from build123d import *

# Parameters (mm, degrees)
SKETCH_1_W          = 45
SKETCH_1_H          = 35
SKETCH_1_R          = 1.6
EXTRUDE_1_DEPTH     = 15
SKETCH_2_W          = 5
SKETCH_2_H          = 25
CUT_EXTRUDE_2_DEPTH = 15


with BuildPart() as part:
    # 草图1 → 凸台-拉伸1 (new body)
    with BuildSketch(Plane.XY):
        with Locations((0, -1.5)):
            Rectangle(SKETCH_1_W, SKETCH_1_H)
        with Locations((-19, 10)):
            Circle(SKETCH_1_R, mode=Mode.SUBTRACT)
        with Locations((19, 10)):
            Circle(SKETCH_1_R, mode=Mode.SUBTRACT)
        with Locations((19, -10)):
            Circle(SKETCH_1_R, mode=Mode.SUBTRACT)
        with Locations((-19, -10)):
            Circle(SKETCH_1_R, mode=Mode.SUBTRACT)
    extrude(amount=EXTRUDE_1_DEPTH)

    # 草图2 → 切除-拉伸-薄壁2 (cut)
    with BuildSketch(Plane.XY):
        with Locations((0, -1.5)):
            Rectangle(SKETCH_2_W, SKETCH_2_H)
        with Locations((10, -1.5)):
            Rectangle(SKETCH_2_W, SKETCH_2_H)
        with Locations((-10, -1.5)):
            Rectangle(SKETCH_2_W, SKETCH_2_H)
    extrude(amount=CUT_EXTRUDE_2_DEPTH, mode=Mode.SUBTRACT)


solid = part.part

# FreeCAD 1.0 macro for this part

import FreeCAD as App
import Part
import Sketcher
Q = App.Units.Quantity

doc = App.newDocument("Part")
body = doc.addObject("PartDesign::Body", "Body")

sketch1 = body.newObject("Sketcher::SketchObject", "Sketch")
sketch1.AttachmentSupport = (doc.getObject("XY_Plane"), [""])
sketch1.MapMode = "FlatFace"
sketch1.addGeometry([
    Part.LineSegment(App.Vector(-22.5, 16, 0), App.Vector(-22.5, -19, 0)),
    Part.LineSegment(App.Vector(-22.5, -19, 0), App.Vector(22.5, -19, 0)),
    Part.LineSegment(App.Vector(22.5, -19, 0), App.Vector(22.5, 16, 0)),
    Part.LineSegment(App.Vector(22.5, 16, 0), App.Vector(-22.5, 16, 0)),
    Part.Circle(App.Vector(-19, -10, 0), App.Vector(0, 0, 1), 1.6),
    Part.Circle(App.Vector(19, -10, 0), App.Vector(0, 0, 1), 1.6),
    Part.Circle(App.Vector(-19, 10, 0), App.Vector(0, 0, 1), 1.6),
    Part.Circle(App.Vector(19, 10, 0), App.Vector(0, 0, 1), 1.6),
], False)
sketch1.addConstraint([
    Sketcher.Constraint("Coincident", 0, 2, 1, 1),
    Sketcher.Constraint("Coincident", 1, 2, 2, 1),
    Sketcher.Constraint("Coincident", 2, 2, 3, 1),
    Sketcher.Constraint("Coincident", 3, 2, 0, 1),
    Sketcher.Constraint("Vertical", 0),
    Sketcher.Constraint("Horizontal", 1),
    Sketcher.Constraint("Vertical", 2),
    Sketcher.Constraint("Horizontal", 3),
    Sketcher.Constraint("Equal", 4, 5),
    Sketcher.Constraint("Equal", 5, 6),
    Sketcher.Constraint("Equal", 6, 7),
    Sketcher.Constraint("Symmetric", 5, 3, 6, 3, -1, 1),
    Sketcher.Constraint("Symmetric", 4, 3, 7, 3, -1, 1),
    Sketcher.Constraint("Symmetric", 4, 3, 5, 3, -2),
    Sketcher.Constraint("Diameter", 4, Q("3.2 mm")),
    Sketcher.Constraint("DistanceX", 1, 1, 1, 2, Q("45 mm")),
    Sketcher.Constraint("DistanceY", 0, 2, 0, 1, Q("35 mm")),
    Sketcher.Constraint("DistanceX", 4, 3, -1, 1, Q("19 mm")),
    Sketcher.Constraint("DistanceY", 4, 3, -1, 1, Q("10 mm")),
    Sketcher.Constraint("DistanceY", 0, 2, -1, 1, Q("19 mm")),
    Sketcher.Constraint("DistanceX", 0, 2, -1, 1, Q("22.5 mm")),
])
pad1 = body.newObject("PartDesign::Pad", "Pad")
pad1.Profile = sketch1
pad1.Length = 15

sketch2 = body.newObject("Sketcher::SketchObject", "Sketch001")
sketch2.AttachmentSupport = (doc.getObject("XY_Plane"), [""])
sketch2.MapMode = "FlatFace"
sketch2.addGeometry([
    Part.LineSegment(App.Vector(-2, 11, 0), App.Vector(-2, -14, 0)),
    Part.LineSegment(App.Vector(-2, -14, 0), App.Vector(2, -14, 0)),
    Part.LineSegment(App.Vector(2, -14, 0), App.Vector(2, 11, 0)),
    Part.LineSegment(App.Vector(2, 11, 0), App.Vector(-2, 11, 0)),
    Part.LineSegment(App.Vector(8, 11, 0), App.Vector(8, -14, 0)),
    Part.LineSegment(App.Vector(8, -14, 0), App.Vector(12, -14, 0)),
    Part.LineSegment(App.Vector(12, -14, 0), App.Vector(12, 11, 0)),
    Part.LineSegment(App.Vector(12, 11, 0), App.Vector(8, 11, 0)),
    Part.LineSegment(App.Vector(-12, 11, 0), App.Vector(-12, -14, 0)),
    Part.LineSegment(App.Vector(-12, -14, 0), App.Vector(-8, -14, 0)),
    Part.LineSegment(App.Vector(-8, -14, 0), App.Vector(-8, 11, 0)),
    Part.LineSegment(App.Vector(-8, 11, 0), App.Vector(-12, 11, 0)),
], False)
sketch2.addConstraint([
    Sketcher.Constraint("Coincident", 0, 2, 1, 1),
    Sketcher.Constraint("Coincident", 1, 2, 2, 1),
    Sketcher.Constraint("Coincident", 2, 2, 3, 1),
    Sketcher.Constraint("Coincident", 3, 2, 0, 1),
    Sketcher.Constraint("Coincident", 4, 2, 5, 1),
    Sketcher.Constraint("Coincident", 5, 2, 6, 1),
    Sketcher.Constraint("Coincident", 6, 2, 7, 1),
    Sketcher.Constraint("Coincident", 7, 2, 4, 1),
    Sketcher.Constraint("Coincident", 8, 2, 9, 1),
    Sketcher.Constraint("Coincident", 9, 2, 10, 1),
    Sketcher.Constraint("Coincident", 10, 2, 11, 1),
    Sketcher.Constraint("Coincident", 11, 2, 8, 1),
    Sketcher.Constraint("Vertical", 0),
    Sketcher.Constraint("Horizontal", 1),
    Sketcher.Constraint("Vertical", 2),
    Sketcher.Constraint("Horizontal", 3),
    Sketcher.Constraint("Vertical", 4),
    Sketcher.Constraint("Horizontal", 5),
    Sketcher.Constraint("Vertical", 6),
    Sketcher.Constraint("Horizontal", 7),
    Sketcher.Constraint("Vertical", 8),
    Sketcher.Constraint("Horizontal", 9),
    Sketcher.Constraint("Vertical", 10),
    Sketcher.Constraint("Horizontal", 11),
    Sketcher.Constraint("Symmetric", 5, 2, 8, 2, -2),
    Sketcher.Constraint("Symmetric", 7, 2, 10, 2, -2),
    Sketcher.Constraint("Horizontal", 1, 2, 4, 2),
    Sketcher.Constraint("Horizontal", 3, 2, 6, 2),
    Sketcher.Constraint("Equal", 3, 5),
    Sketcher.Constraint("DistanceX", 1, 1, 1, 2, Q("5 mm")),
    Sketcher.Constraint("DistanceY", 0, 2, 0, 1, Q("25 mm")),
    Sketcher.Constraint("DistanceY", 0, 2, -1, 1, Q("14 mm")),
    Sketcher.Constraint("DistanceX", 1, 2, 4, 2, Q("5 mm")),
    Sketcher.Constraint("DistanceX", 8, 2, 0, 2, Q("10 mm")),
])
pocket1 = body.newObject("PartDesign::Pocket", "Pocket")
pocket1.Profile = sketch2
pocket1.Length = 15
pocket1.Reversed = True

doc.recompute()
